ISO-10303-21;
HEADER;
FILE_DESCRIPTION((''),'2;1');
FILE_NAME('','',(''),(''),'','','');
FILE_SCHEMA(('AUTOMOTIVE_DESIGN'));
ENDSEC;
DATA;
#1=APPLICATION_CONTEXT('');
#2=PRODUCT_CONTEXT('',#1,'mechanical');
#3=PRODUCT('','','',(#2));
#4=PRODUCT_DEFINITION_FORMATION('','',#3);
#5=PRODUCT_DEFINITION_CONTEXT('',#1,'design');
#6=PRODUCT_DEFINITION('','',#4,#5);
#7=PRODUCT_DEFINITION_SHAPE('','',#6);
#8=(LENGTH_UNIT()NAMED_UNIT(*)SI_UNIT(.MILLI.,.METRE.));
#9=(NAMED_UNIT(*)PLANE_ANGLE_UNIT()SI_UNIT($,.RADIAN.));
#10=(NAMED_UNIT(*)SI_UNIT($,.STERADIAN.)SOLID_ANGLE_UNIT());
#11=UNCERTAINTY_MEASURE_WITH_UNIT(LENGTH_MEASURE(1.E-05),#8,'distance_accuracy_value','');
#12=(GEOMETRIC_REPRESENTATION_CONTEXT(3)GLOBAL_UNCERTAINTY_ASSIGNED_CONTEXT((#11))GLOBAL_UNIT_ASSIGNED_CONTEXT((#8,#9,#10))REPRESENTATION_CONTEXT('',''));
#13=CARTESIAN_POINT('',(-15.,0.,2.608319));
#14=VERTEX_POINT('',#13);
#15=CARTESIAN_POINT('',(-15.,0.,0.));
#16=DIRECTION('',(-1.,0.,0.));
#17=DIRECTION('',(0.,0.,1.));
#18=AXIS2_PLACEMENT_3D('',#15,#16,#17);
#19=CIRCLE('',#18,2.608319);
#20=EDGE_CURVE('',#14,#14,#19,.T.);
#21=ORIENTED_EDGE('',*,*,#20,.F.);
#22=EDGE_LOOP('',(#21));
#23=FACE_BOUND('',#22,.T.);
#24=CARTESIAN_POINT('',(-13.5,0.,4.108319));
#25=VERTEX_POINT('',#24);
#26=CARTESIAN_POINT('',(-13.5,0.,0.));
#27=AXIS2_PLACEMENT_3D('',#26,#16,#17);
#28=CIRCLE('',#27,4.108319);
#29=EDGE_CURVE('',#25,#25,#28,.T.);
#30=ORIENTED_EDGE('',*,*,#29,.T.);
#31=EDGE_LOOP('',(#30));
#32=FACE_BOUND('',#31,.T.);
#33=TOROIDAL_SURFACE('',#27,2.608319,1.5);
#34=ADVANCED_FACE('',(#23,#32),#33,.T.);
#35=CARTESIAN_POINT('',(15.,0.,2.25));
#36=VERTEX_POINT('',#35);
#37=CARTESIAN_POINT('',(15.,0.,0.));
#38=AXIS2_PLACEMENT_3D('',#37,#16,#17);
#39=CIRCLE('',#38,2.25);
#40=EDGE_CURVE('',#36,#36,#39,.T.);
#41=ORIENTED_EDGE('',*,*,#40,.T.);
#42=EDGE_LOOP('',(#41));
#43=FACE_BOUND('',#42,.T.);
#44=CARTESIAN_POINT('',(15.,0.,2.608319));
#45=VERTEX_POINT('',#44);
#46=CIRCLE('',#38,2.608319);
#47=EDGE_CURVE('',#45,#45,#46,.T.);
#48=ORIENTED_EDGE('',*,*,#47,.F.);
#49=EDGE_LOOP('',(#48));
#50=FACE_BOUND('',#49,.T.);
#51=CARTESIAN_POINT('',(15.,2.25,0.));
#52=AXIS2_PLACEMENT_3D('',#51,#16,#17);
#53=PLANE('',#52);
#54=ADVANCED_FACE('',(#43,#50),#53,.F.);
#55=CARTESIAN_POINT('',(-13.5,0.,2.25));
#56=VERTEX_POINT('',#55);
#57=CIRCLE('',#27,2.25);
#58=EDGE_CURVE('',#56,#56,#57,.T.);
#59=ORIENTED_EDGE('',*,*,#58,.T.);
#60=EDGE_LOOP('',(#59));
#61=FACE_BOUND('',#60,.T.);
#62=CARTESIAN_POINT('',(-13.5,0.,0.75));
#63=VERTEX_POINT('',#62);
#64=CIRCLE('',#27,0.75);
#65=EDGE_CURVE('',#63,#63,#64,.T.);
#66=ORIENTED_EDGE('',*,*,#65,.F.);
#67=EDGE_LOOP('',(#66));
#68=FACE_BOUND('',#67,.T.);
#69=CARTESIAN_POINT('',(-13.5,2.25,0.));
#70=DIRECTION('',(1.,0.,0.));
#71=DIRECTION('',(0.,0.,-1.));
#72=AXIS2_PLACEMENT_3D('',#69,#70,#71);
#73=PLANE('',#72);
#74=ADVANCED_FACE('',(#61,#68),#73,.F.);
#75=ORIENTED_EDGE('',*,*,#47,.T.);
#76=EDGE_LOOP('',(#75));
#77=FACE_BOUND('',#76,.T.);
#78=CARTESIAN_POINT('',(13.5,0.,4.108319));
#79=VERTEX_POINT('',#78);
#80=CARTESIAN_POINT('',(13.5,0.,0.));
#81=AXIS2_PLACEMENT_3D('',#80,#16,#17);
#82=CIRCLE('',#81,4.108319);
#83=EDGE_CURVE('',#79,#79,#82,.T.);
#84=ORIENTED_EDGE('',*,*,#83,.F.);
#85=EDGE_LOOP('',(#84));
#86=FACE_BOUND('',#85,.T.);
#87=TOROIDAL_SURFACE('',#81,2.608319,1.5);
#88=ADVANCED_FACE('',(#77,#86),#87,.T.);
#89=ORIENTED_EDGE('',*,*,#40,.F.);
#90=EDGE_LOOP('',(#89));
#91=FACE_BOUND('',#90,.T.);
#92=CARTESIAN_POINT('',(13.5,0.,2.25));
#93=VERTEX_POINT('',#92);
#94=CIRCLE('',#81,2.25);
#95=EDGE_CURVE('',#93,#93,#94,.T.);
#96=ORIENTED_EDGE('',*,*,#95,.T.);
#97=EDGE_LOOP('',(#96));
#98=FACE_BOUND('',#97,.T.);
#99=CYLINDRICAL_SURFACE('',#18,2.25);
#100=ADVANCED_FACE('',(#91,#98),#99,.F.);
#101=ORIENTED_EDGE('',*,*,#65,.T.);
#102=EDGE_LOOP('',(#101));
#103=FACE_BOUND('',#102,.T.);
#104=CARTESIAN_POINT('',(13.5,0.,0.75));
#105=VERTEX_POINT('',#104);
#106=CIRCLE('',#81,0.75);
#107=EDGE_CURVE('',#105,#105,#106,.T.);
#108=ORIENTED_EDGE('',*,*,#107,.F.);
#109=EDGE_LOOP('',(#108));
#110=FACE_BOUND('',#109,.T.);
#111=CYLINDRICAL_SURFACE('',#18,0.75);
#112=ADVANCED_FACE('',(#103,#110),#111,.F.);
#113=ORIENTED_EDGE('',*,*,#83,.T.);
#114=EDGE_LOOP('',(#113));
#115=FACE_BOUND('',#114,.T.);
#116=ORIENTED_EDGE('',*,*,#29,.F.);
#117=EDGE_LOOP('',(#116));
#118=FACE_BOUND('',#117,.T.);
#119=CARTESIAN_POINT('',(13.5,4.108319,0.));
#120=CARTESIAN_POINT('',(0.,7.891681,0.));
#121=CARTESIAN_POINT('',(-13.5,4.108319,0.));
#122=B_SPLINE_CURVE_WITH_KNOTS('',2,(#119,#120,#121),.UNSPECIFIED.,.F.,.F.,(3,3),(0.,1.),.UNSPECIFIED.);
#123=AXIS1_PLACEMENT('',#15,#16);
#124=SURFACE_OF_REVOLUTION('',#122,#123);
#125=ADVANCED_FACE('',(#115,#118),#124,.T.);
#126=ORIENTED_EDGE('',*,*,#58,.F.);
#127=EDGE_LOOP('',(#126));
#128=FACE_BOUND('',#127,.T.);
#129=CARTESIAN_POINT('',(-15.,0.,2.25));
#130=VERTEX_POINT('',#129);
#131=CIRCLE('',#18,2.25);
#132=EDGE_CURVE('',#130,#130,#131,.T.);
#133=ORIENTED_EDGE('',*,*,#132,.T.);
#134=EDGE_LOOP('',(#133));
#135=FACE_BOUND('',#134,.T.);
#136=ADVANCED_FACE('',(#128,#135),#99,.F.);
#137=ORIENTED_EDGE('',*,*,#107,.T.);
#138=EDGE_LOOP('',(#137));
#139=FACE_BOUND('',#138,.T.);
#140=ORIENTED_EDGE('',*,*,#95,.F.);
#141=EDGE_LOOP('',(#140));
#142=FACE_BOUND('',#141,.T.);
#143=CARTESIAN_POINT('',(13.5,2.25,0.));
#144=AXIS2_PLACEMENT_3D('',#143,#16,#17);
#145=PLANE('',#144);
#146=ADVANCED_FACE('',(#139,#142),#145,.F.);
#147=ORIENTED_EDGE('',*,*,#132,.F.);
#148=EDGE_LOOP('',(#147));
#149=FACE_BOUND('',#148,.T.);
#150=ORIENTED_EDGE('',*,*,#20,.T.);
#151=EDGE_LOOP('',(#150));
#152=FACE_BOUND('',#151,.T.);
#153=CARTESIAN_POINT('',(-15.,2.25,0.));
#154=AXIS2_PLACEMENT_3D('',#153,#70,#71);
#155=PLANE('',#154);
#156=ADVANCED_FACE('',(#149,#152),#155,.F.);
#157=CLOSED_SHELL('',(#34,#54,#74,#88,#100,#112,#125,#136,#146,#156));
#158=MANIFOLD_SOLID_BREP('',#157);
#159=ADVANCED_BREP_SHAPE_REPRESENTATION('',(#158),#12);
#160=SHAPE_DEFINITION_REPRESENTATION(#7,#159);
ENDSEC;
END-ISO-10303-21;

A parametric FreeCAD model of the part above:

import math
import FreeCAD as App
import Part
import Sketcher
Q = App.Units.Quantity

doc = App.newDocument("Part")
body = doc.addObject("PartDesign::Body", "Body")

# Sketch on XY plane
sketch1 = body.newObject("Sketcher::SketchObject", "Sketch")
sketch1.AttachmentSupport = (doc.getObject("XY_Plane"), [""])
sketch1.MapMode = "FlatFace"
sketch1.addGeometry([
    Part.LineSegment(App.Vector(-13.5, 0.75, 0), App.Vector(13.5, 0.75, 0)),  # 0
    Part.LineSegment(App.Vector(13.5, 0.75, 0), App.Vector(13.5, 2.25, 0)),  # 1
    Part.LineSegment(App.Vector(13.5, 2.25, 0), App.Vector(15, 2.25, 0)),  # 2
    Part.LineSegment(App.Vector(15, 2.25, 0), App.Vector(15, 2.608319, 0)),  # 3
    Part.ArcOfCircle(Part.Circle(App.Vector(13.5, 2.608319, 0), App.Vector(0, 0, 1), 1.5), math.radians(0), math.radians(90)),  # 4
    Part.BSplineCurve([App.Vector(-13.5, 4.108319, 0), App.Vector(0, 7.891681, 0), App.Vector(13.5, 4.108319, 0)], [3, 3], [0, 1], False, 2, [1, 1, 1], False),  # 5
    Part.ArcOfCircle(Part.Circle(App.Vector(-13.5, 2.608319, 0), App.Vector(0, 0, 1), 1.5), math.radians(90), math.radians(180)),  # 6
    Part.LineSegment(App.Vector(-15, 2.608319, 0), App.Vector(-15, 2.25, 0)),  # 7
    Part.LineSegment(App.Vector(-15, 2.25, 0), App.Vector(-13.5, 2.25, 0)),  # 8
    Part.LineSegment(App.Vector(-13.5, 2.25, 0), App.Vector(-13.5, 0.75, 0)),  # 9
], False)
sketch1.addConstraint([
    Sketcher.Constraint("Block", 5),
    Sketcher.Constraint("Coincident", 0, 2, 1, 1),
    Sketcher.Constraint("Coincident", 1, 2, 2, 1),
    Sketcher.Constraint("Coincident", 2, 2, 3, 1),
    Sketcher.Constraint("Tangent", 3, 2, 4, 1),
    Sketcher.Constraint("Coincident", 4, 2, 5, 2),
    Sketcher.Constraint("Coincident", 5, 1, 6, 1),
    Sketcher.Constraint("Tangent", 6, 2, 7, 1),
    Sketcher.Constraint("Coincident", 7, 2, 8, 1),
    Sketcher.Constraint("Coincident", 8, 2, 9, 1),
    Sketcher.Constraint("Coincident", 9, 2, 0, 1),
    Sketcher.Constraint("Horizontal", 0),
    Sketcher.Constraint("Vertical", 1),
    Sketcher.Constraint("Horizontal", 2),
    Sketcher.Constraint("Vertical", 3),
    Sketcher.Constraint("Vertical", 7),
    Sketcher.Constraint("Horizontal", 8),
    Sketcher.Constraint("Vertical", 9),
    Sketcher.Constraint("Equal", 4, 6),
    Sketcher.Constraint("Symmetric", 2, 2, 7, 2, -2),
    Sketcher.Constraint("Vertical", 4, 3, 0, 2),
    Sketcher.Constraint("Vertical", 1, 2, 4, 2),
    Sketcher.Constraint("Vertical", 6, 3, 8, 2),
    Sketcher.Constraint("Equal", 8, 1),
    Sketcher.Constraint("Radius", 4, Q("1.5 mm")),
    Sketcher.Constraint("DistanceY", -1, 1, 0, 2, Q("0.75 mm")),
])
revolution = body.newObject("PartDesign::Revolution", "Revolution")
revolution.Profile = sketch1
revolution.ReferenceAxis = (sketch1, ["H_Axis"])
revolution.Angle = 360

doc.recompute()
